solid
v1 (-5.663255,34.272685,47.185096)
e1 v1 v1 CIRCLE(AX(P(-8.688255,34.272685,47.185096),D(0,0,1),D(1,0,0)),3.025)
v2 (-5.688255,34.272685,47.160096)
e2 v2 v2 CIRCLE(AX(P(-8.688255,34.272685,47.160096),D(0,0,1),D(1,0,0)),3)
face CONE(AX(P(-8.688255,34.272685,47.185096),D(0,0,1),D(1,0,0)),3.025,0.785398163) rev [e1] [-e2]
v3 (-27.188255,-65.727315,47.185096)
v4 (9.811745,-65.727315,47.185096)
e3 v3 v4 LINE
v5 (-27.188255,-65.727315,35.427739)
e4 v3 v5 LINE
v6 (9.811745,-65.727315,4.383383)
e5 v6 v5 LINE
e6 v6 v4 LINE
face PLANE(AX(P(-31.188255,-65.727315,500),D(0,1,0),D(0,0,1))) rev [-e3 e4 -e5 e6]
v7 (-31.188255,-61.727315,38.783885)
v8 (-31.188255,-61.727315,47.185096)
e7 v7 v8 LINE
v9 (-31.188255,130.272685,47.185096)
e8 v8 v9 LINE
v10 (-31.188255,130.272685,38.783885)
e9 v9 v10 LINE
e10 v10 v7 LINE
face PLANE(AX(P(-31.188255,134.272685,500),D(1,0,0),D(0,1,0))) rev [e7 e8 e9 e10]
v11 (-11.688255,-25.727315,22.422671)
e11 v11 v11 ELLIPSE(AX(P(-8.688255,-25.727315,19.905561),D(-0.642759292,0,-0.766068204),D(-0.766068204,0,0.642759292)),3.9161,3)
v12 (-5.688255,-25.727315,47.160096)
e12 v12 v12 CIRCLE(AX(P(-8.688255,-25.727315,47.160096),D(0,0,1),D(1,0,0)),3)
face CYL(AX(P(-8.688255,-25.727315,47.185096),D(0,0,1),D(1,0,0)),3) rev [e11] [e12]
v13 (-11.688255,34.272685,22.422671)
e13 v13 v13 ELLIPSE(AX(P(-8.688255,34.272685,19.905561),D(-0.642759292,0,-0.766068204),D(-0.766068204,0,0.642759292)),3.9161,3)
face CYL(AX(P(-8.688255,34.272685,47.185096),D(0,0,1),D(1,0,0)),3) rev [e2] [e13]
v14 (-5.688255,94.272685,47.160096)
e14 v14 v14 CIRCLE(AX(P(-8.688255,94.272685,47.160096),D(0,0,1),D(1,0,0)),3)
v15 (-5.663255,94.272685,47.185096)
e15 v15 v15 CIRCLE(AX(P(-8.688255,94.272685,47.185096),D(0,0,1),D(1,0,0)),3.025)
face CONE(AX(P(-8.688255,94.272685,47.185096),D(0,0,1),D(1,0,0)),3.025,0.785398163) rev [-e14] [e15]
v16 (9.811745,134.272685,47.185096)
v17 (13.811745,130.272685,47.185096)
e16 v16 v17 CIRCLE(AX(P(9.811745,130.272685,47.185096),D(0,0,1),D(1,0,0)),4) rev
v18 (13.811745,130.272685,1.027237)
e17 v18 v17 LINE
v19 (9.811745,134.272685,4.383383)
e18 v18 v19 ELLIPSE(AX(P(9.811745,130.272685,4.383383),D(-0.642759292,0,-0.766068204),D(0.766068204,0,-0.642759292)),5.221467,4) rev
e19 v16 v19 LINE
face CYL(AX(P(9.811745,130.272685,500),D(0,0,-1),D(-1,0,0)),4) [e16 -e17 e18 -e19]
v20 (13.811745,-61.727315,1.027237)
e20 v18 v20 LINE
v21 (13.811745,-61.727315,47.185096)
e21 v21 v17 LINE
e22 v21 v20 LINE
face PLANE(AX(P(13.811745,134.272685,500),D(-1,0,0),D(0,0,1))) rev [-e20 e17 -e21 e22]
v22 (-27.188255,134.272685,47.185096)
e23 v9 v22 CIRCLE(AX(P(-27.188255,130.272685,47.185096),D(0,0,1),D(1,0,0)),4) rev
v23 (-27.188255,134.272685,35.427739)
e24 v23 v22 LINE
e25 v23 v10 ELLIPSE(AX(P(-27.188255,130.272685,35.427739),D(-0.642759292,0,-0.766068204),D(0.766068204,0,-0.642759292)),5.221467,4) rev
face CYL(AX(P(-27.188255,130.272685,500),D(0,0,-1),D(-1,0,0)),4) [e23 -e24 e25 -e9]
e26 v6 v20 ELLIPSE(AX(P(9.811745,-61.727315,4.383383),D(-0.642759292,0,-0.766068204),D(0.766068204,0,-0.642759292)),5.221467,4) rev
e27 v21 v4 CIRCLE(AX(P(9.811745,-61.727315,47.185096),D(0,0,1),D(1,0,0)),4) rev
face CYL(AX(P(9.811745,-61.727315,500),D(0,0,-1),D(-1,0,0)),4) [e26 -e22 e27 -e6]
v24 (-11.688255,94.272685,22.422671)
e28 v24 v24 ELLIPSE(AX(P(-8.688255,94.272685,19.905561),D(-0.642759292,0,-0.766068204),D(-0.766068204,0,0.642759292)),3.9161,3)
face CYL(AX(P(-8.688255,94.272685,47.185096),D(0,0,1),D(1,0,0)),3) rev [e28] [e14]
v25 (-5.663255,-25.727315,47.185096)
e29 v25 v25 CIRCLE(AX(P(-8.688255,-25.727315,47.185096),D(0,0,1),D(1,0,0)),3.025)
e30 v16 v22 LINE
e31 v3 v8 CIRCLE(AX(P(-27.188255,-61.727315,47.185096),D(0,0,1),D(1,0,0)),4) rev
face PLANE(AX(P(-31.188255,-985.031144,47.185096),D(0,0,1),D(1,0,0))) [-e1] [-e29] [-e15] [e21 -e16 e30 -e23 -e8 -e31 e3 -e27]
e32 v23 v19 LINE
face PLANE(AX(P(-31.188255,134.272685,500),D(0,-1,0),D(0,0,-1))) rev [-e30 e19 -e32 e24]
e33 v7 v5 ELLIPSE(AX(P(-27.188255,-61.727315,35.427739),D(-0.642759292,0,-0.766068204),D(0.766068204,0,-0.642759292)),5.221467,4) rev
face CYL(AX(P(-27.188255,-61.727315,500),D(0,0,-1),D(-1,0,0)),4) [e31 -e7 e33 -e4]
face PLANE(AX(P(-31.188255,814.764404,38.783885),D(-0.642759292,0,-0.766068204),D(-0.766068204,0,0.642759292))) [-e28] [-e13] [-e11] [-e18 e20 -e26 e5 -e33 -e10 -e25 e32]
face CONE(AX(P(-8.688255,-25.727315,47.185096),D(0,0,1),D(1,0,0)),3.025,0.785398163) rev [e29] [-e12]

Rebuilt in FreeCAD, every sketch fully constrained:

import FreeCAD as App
import Part
import Sketcher

V = App.Vector
Q = App.Units.Quantity


def edges_at(feature, points):
    """Names of the edges that pass closest to the given points."""
    edges = feature.Shape.Edges
    near = lambda p: min(range(len(edges)), key=lambda i: edges[i].distToShape(Part.Vertex(*p))[0])
    return sorted({f"Edge{near(p) + 1}" for p in points})


def add_polygon(sketch, points):
    """Adds a closed chain of lines whose ends are joined by coincident constraints."""
    first, n = sketch.GeometryCount, len(points)
    for a, b in zip(points, points[1:] + points[:1]):
        sketch.addGeometry(Part.LineSegment(App.Vector(*a, 0), App.Vector(*b, 0)), False)
    for i in range(n):
        sketch.addConstraint(Sketcher.Constraint("Coincident", first + i, 2, first + (i + 1) % n, 1))

doc = App.newDocument("Part")
body = doc.addObject("PartDesign::Body", "Body")

# Sketch on XY plane
sketch1 = doc.addObject("Sketcher::SketchObject", "Sketch")
body.addObject(sketch1)
sketch1.AttachmentSupport = (doc.XY_Plane, [""])
sketch1.MapMode = "FlatFace"
add_polygon(sketch1, [(-31, 134), (-31, -66), (14, -66), (14, 134)])  # lines 0-3
sketch1.addConstraint([
    Sketcher.Constraint("Vertical", 0),
    Sketcher.Constraint("Horizontal", 1),
    Sketcher.Constraint("Vertical", 2),
    Sketcher.Constraint("Horizontal", 3),
    Sketcher.Constraint("DistanceX", 1, 1, 1, 2, Q("45 mm")),
    Sketcher.Constraint("DistanceY", 0, 2, 0, 1, Q("200 mm")),
    Sketcher.Constraint("DistanceX", 0, 2, -1, 1, Q("31.188255 mm")),
    Sketcher.Constraint("DistanceY", 0, 2, -1, 1, Q("65.727315 mm")),
])
pad1 = doc.addObject("PartDesign::Pad", "Pad")
body.addObject(pad1)
pad1.Profile = sketch1
pad1.Length = 500
doc.recompute()

fillet = doc.addObject("PartDesign::Fillet", "Fillet")
body.addObject(fillet)
fillet.Base = (pad1, edges_at(pad1, [
    (13.812, 134.273, 250),
    (13.812, -65.727, 250),
    (-31.188, -65.727, 250),
    (-31.188, 134.273, 250),
]))
fillet.Radius = 4

# Sketch on XZ plane
sketch2 = doc.addObject("Sketcher::SketchObject", "Sketch001")
body.addObject(sketch2)
sketch2.AttachmentSupport = (doc.XZ_Plane, [""])
sketch2.MapMode = "FlatFace"
sketch2.AttachmentOffset = App.Placement(V(0, 0, -134.272685), App.Rotation())
add_polygon(sketch2, [(-31, 480), (-955, 60), (-1793, 1907), (99, 2766), (937, 919), (14, 500)])  # lines 0-5
sketch2.addConstraint([
    Sketcher.Constraint("Perpendicular", 0, 1),
    Sketcher.Constraint("Perpendicular", 1, 2),
    Sketcher.Constraint("Perpendicular", 2, 3),
    Sketcher.Constraint("Perpendicular", 3, 4),
    Sketcher.Constraint("Parallel", 4, 5),
    Sketcher.Constraint("Equal", 0, 4),
    Sketcher.Constraint("DistanceY", -1, 1, 4, 2, Q("500 mm")),
    Sketcher.Constraint("DistanceX", 5, 2, 4, 2, Q("45 mm")),
    Sketcher.Constraint("Distance", 0, Q("1014.041832 mm")),
    Sketcher.Constraint("DistanceX", 1, 2, 0, 2, Q("838.384009 mm")),
    Sketcher.Constraint("DistanceY", 1, 2, 2, 2, Q("858.813771 mm")),
    Sketcher.Constraint("DistanceX", 0, 2, -1, 1, Q("954.529417 mm")),
])
pocket1 = doc.addObject("PartDesign::Pocket", "Pocket")
body.addObject(pocket1)
pocket1.Profile = sketch2
pocket1.Type = "ThroughAll"
pocket1.Midplane = True

# Sketch on XZ plane
sketch3 = doc.addObject("Sketcher::SketchObject", "Sketch002")
body.addObject(sketch3)
sketch3.AttachmentSupport = (doc.XZ_Plane, [""])
sketch3.MapMode = "FlatFace"
sketch3.AttachmentOffset = App.Placement(V(0, 0, -134.272685), App.Rotation())
add_polygon(sketch3, [(14, 0), (782, -662), (-542, -2198), (-2123, -835), (-799, 701), (-31, 39)])  # lines 0-5
sketch3.addConstraint([
    Sketcher.Constraint("PointOnObject", 5, 2, -1),
    Sketcher.Constraint("Perpendicular", 0, 1),
    Sketcher.Constraint("Perpendicular", 1, 2),
    Sketcher.Constraint("Perpendicular", 2, 3),
    Sketcher.Constraint("Perpendicular", 3, 4),
    Sketcher.Constraint("Parallel", 4, 5),
    Sketcher.Constraint("Equal", 0, 4),
    Sketcher.Constraint("DistanceX", 4, 2, 5, 2, Q("45 mm")),
    Sketcher.Constraint("Distance", 0, Q("1014.041832 mm")),
    Sketcher.Constraint("DistanceY", 0, 2, -1, 1, Q("662.017822 mm")),
    Sketcher.Constraint("DistanceY", 1, 2, -1, 1, Q("2198.264209 mm")),
    Sketcher.Constraint("DistanceX", 3, 2, -1, 1, Q("799.311449 mm")),
])
pocket2 = doc.addObject("PartDesign::Pocket", "Pocket001")
body.addObject(pocket2)
pocket2.Profile = sketch3
pocket2.Type = "ThroughAll"
pocket2.Midplane = True

# Sketch on XZ plane
sketch4 = doc.addObject("Sketcher::SketchObject", "Sketch003")
body.addObject(sketch4)
sketch4.AttachmentSupport = (doc.XZ_Plane, [""])
sketch4.MapMode = "FlatFace"
sketch4.AttachmentOffset = App.Placement(V(0, 0, -134.272685), App.Rotation())
add_polygon(sketch4, [(-806, 689), (-31, 39), (14, 1), (789, -649), (-512, -2200), (-2107, -861)])  # lines 0-5
sketch4.addConstraint([
    Sketcher.Constraint("Parallel", 0, 1),
    Sketcher.Constraint("Parallel", 1, 2),
    Sketcher.Constraint("Perpendicular", 2, 3),
    Sketcher.Constraint("Perpendicular", 3, 4),
    Sketcher.Constraint("Perpendicular", 4, 5),
    Sketcher.Constraint("Equal", 0, 2),
    Sketcher.Constraint("DistanceX", 0, 2, 1, 2, Q("45 mm")),
    Sketcher.Constraint("Distance", 3, Q("2023.991292 mm")),
    Sketcher.Constraint("DistanceX", -1, 1, 2, 2, Q("789.069431 mm")),
    Sketcher.Constraint("DistanceY", 2, 2, -1, 1, Q("649.442368 mm")),
    Sketcher.Constraint("DistanceX", 3, 2, -1, 1, Q("511.869779 mm")),
    Sketcher.Constraint("DistanceX", 4, 2, -1, 1, Q("2107.385151 mm")),
])
pocket3 = doc.addObject("PartDesign::Pocket", "Pocket002")
body.addObject(pocket3)
pocket3.Profile = sketch4
pocket3.Type = "ThroughAll"
pocket3.Midplane = True

# Sketch on XZ plane
sketch5 = doc.addObject("Sketcher::SketchObject", "Sketch004")
body.addObject(sketch5)
sketch5.AttachmentSupport = (doc.XZ_Plane, [""])
sketch5.MapMode = "FlatFace"
sketch5.AttachmentOffset = App.Placement(V(0, 0, 65.727315), App.Rotation())
add_polygon(sketch5, [(-951, 47), (934, 47), (934, 1887), (-951, 1887)])  # lines 0-3
sketch5.addConstraint([
    Sketcher.Constraint("Horizontal", 0),
    Sketcher.Constraint("Vertical", 1),
    Sketcher.Constraint("Horizontal", 2),
    Sketcher.Constraint("Vertical", 3),
    Sketcher.Constraint("DistanceX", 0, 1, 0, 2, Q("1885.181693 mm")),
    Sketcher.Constraint("DistanceY", 1, 1, 1, 2, Q("1840.181693 mm")),
    Sketcher.Constraint("DistanceX", -1, 1, 0, 2, Q("933.902591 mm")),
    Sketcher.Constraint("DistanceY", -1, 1, 1, 2, Q("1887.366789 mm")),
])
pocket4 = doc.addObject("PartDesign::Pocket", "Pocket003")
body.addObject(pocket4)
pocket4.Profile = sketch5
pocket4.Type = "ThroughAll"
pocket4.Midplane = True

# Sketch on XY plane
sketch6 = doc.addObject("Sketcher::SketchObject", "Sketch005")
body.addObject(sketch6)
sketch6.AttachmentSupport = (doc.XY_Plane, [""])
sketch6.MapMode = "FlatFace"
sketch6.AttachmentOffset = App.Placement(V(0, 0, 47.185096), App.Rotation())
sketch6.addGeometry([
    Part.Circle(V(-8.7, -25.7, 0), V(0, 0, 1), 3),
    Part.Circle(V(-8.7, 34.3, 0), V(0, 0, 1), 3),
    Part.Circle(V(-8.7, 94.3, 0), V(0, 0, 1), 3),
], False)
sketch6.addConstraint([
    Sketcher.Constraint("Equal", 0, 1),
    Sketcher.Constraint("Equal", 1, 2),
    Sketcher.Constraint("Vertical", 0, 3, 1, 3),
    Sketcher.Constraint("Vertical", 1, 3, 2, 3),
    Sketcher.Constraint("Diameter", 0, Q("6 mm")),
    Sketcher.Constraint("DistanceY", 0, 3, 1, 3, Q("60 mm")),
    Sketcher.Constraint("DistanceY", 1, 3, 2, 3, Q("60 mm")),
    Sketcher.Constraint("DistanceX", 0, 3, -1, 1, Q("8.688255 mm")),
    Sketcher.Constraint("DistanceY", 0, 3, -1, 1, Q("25.727315 mm")),
])
doc.recompute()
hole = doc.addObject("PartDesign::Hole", "Hole")
body.addObject(hole)
hole.Profile = sketch6
hole.ThreadType = "None"
hole.Diameter = 6
hole.DepthType = "Dimension"
hole.Depth = 128.197418
hole.DrillPoint = "Angled"
hole.DrillPointAngle = 118
hole.HoleCutType = "Countersink"
hole.HoleCutDiameter = 6.05
hole.HoleCutCountersinkAngle = 90

doc.recompute()
